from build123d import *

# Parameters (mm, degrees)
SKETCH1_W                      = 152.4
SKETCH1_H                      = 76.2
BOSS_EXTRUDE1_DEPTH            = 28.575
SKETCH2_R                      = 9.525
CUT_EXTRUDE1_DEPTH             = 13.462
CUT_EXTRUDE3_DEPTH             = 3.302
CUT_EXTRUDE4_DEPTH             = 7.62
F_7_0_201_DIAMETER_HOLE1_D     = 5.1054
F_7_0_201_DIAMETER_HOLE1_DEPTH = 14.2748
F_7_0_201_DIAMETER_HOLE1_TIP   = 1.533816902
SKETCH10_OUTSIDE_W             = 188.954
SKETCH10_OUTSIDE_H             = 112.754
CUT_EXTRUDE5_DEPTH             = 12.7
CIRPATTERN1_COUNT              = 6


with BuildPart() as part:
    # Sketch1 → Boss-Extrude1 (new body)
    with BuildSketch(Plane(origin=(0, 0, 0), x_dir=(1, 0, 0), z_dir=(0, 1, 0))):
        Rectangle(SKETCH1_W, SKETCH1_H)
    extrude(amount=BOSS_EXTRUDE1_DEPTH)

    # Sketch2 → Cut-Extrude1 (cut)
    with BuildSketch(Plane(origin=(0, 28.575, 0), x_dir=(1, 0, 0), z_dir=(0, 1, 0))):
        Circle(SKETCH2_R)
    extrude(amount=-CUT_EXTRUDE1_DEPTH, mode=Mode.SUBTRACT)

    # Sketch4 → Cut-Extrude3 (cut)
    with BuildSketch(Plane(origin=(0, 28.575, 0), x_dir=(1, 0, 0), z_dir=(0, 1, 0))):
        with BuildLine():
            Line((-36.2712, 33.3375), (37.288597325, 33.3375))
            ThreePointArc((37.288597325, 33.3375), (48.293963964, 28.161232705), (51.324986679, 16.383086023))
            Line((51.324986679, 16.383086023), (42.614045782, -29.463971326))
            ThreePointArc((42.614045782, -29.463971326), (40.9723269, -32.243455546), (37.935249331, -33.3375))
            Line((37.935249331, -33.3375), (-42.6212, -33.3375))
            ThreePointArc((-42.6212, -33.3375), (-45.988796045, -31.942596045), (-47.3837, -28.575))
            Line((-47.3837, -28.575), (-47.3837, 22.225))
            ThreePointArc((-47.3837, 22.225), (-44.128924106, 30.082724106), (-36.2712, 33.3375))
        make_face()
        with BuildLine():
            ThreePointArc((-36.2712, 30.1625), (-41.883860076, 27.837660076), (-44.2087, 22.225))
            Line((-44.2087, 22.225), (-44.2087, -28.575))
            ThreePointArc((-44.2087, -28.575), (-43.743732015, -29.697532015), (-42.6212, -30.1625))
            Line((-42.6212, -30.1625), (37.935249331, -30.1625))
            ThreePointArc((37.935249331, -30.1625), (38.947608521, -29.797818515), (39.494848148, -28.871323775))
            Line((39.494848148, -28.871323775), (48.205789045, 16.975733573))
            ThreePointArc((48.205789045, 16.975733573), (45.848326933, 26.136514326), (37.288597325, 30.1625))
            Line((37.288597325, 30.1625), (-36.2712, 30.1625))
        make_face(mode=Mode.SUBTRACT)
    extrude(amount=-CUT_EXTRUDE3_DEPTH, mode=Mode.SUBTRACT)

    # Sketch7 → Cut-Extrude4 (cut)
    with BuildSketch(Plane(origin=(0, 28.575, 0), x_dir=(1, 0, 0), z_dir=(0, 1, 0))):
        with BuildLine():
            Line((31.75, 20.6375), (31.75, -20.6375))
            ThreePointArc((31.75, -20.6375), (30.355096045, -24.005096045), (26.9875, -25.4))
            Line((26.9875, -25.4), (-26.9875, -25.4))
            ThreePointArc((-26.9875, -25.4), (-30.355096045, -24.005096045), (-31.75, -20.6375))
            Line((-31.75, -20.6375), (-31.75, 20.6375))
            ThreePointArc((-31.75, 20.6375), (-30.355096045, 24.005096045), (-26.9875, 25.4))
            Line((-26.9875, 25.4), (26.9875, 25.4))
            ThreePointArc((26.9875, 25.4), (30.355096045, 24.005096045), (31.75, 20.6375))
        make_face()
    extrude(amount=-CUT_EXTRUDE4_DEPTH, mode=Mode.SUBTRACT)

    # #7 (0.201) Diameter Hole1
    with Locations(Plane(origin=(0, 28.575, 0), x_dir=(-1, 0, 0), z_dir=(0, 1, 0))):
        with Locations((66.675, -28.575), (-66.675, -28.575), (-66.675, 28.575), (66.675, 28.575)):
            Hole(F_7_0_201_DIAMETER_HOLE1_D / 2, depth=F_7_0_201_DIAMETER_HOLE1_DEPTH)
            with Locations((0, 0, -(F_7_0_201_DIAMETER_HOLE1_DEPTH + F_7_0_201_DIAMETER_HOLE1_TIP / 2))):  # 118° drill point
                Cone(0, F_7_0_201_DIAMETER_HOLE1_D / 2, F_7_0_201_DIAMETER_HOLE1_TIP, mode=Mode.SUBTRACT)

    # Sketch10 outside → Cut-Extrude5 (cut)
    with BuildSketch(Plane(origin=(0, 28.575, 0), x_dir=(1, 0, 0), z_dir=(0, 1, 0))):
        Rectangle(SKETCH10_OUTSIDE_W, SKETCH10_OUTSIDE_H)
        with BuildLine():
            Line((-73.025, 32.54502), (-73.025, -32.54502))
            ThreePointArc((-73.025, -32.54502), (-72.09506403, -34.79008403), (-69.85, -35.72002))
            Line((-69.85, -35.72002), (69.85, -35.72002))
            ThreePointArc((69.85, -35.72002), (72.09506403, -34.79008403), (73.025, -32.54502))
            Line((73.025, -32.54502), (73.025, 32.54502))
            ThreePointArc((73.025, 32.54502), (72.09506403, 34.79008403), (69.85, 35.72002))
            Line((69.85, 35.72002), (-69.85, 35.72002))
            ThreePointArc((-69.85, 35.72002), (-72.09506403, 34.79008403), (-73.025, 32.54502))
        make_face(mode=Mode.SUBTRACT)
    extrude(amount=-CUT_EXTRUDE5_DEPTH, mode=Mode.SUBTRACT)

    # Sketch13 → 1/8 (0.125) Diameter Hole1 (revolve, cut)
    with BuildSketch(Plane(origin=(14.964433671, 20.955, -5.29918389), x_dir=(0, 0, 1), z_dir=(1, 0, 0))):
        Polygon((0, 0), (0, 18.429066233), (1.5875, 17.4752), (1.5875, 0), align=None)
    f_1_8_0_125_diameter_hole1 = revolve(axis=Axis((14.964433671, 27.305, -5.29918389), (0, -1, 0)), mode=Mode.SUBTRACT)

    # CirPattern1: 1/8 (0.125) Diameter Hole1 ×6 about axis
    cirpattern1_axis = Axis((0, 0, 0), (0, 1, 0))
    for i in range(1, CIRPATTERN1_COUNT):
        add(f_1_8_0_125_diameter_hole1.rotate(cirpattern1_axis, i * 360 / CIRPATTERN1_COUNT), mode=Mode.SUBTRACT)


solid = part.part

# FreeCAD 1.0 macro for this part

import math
import FreeCAD as App
import Part
import Sketcher

V = App.Vector
Q = App.Units.Quantity


def add_polygon(sketch, points):
    """Adds a closed chain of lines whose ends are joined by coincident constraints."""
    first, n = sketch.GeometryCount, len(points)
    for a, b in zip(points, points[1:] + points[:1]):
        sketch.addGeometry(Part.LineSegment(App.Vector(*a, 0), App.Vector(*b, 0)), False)
    for i in range(n):
        sketch.addConstraint(Sketcher.Constraint("Coincident", first + i, 2, first + (i + 1) % n, 1))

doc = App.newDocument("Part")
params = doc.addObject("Spreadsheet::Sheet", "Params")
for row, (alias, value) in enumerate([
    ("sketch1_width", "6 in"),
    ("sketch1_height", "3 in"),
    ("pad1_length", "1.125 in"),
    ("sketch2_diameter", "0.75 in"),
    ("pocket1_length", "0.53 in"),
    ("sketch3_height", "2 in"),
    ("sketch3_radius", "0.4375 in"),
    ("sketch3_radius2", "0.1875 in"),
    ("sketch3_radius3", "0.5625 in"),
    ("pocket2_length", "0.13 in"),
    ("sketch4_radius", "0.1875 in"),
    ("sketch4_width", "2.125 in"),
    ("pocket3_length", "0.3 in"),
    ("sketch5_diameter", "0.201 in"),
    ("hole_diameter", "0.201 in"),
    ("hole_depth", "0.562 in"),
    ("sketch6_width", "5.5 in"),
    ("sketch6_radius", "0.125 in"),
    ("pocket4_length", "0.5 in"),
    ("sketch7_width", "0.688 in"),
    ("sketch7_height", "0.0625 in"),
    ("groove_angle", "360 deg"),
], start=1):
    params.set(f"A{row}", alias)
    params.set(f"B{row}", "=" + value)
    params.setAlias(f"B{row}", alias)

body = doc.addObject("PartDesign::Body", "Body")

sketch1 = body.newObject("Sketcher::SketchObject", "Sketch")
sketch1.AttachmentSupport = (doc.getObject("XZ_Plane"), [""])
sketch1.MapMode = "FlatFace"
add_polygon(sketch1, [(-76, -38), (-76, 38), (76, 38), (76, -38)])
sketch1.addConstraint([
    Sketcher.Constraint("Vertical", 0),
    Sketcher.Constraint("Horizontal", 1),
    Sketcher.Constraint("Vertical", 2),
    Sketcher.Constraint("Horizontal", 3),
    Sketcher.Constraint("Symmetric", 0, 2, 2, 2, -1, 1),
    Sketcher.Constraint("DistanceX", 1, 1, 1, 2, Q("6 in")),
    Sketcher.Constraint("DistanceY", 0, 1, 0, 2, Q("3 in")),
])
sketch1.setExpression("Constraints[9]", "Params.sketch1_width")
sketch1.setExpression("Constraints[10]", "Params.sketch1_height")
pad1 = body.newObject("PartDesign::Pad", "Pad")
pad1.Profile = sketch1
pad1.setExpression("Length", "Params.pad1_length")
pad1.Reversed = True

sketch2 = body.newObject("Sketcher::SketchObject", "Sketch001")
sketch2.AttachmentSupport = (doc.getObject("XZ_Plane"), [""])
sketch2.MapMode = "FlatFace"
sketch2.AttachmentOffset = App.Placement(V(0, 0, -1.125 * 25.4), App.Rotation())
sketch2.addGeometry(Part.Circle(V(0, 0, 0), V(0, 0, 1), 10), False)
sketch2.addConstraint([
    Sketcher.Constraint("Coincident", 0, 3, -1, 1),
    Sketcher.Constraint("Diameter", 0, Q("0.75 in")),
])
sketch2.setExpression("Constraints[1]", "Params.sketch2_diameter")
pocket1 = body.newObject("PartDesign::Pocket", "Pocket")
pocket1.Profile = sketch2
pocket1.setExpression("Length", "Params.pocket1_length")
pocket1.Reversed = True

sketch3 = body.newObject("Sketcher::SketchObject", "Sketch002")
sketch3.AttachmentSupport = (doc.getObject("XZ_Plane"), [""])
sketch3.MapMode = "FlatFace"
sketch3.AttachmentOffset = App.Placement(V(0, 0, -1.125 * 25.4), App.Rotation())
sketch3.addGeometry([
    Part.LineSegment(V(37.3, -33.3, 0), V(-36.3, -33.3, 0)),
    Part.ArcOfCircle(Part.Circle(V(-36.3, -22.2, 0), V(0, 0, 1), 11.1), math.radians(180), math.radians(270)),
    Part.LineSegment(V(-47.4, -22.2, 0), V(-47.4, 28.6, 0)),
    Part.ArcOfCircle(Part.Circle(V(-42.6, 28.6, 0), V(0, 0, 1), 4.8), math.radians(90), math.radians(180)),
    Part.LineSegment(V(-42.6, 33.3, 0), V(37.9, 33.3, 0)),
    Part.ArcOfCircle(Part.Circle(V(37.9, 28.6, 0), V(0, 0, 1), 4.8), math.radians(11), math.radians(90)),
    Part.LineSegment(V(42.6, 29.5, 0), V(51.3, -16.4, 0)),
    Part.ArcOfCircle(Part.Circle(V(37.3, -19.1, 0), V(0, 0, 1), 14.3), math.radians(-90), math.radians(11)),
    Part.LineSegment(V(-36.3, -30.2, 0), V(37.3, -30.2, 0)),
    Part.ArcOfCircle(Part.Circle(V(37.3, -19.1, 0), V(0, 0, 1), 11.1), math.radians(-90), math.radians(11)),
    Part.LineSegment(V(48.2, -17, 0), V(39.5, 28.9, 0)),
    Part.ArcOfCircle(Part.Circle(V(37.9, 28.6, 0), V(0, 0, 1), 1.6), math.radians(11), math.radians(90)),
    Part.LineSegment(V(37.9, 30.2, 0), V(-42.6, 30.2, 0)),
    Part.ArcOfCircle(Part.Circle(V(-42.6, 28.6, 0), V(0, 0, 1), 1.6), math.radians(90), math.radians(180)),
    Part.LineSegment(V(-44.2, 28.6, 0), V(-44.2, -22.2, 0)),
    Part.ArcOfCircle(Part.Circle(V(-36.3, -22.2, 0), V(0, 0, 1), 7.9), math.radians(180), math.radians(270)),
], False)
sketch3.addConstraint([
    Sketcher.Constraint("Tangent", 0, 2, 1, 2),
    Sketcher.Constraint("Tangent", 1, 1, 2, 1),
    Sketcher.Constraint("Tangent", 2, 2, 3, 2),
    Sketcher.Constraint("Tangent", 3, 1, 4, 1),
    Sketcher.Constraint("Tangent", 4, 2, 5, 2),
    Sketcher.Constraint("Tangent", 5, 1, 6, 1),
    Sketcher.Constraint("Tangent", 6, 2, 7, 2),
    Sketcher.Constraint("Tangent", 7, 1, 0, 1),
    Sketcher.Constraint("Tangent", 8, 2, 9, 1),
    Sketcher.Constraint("Tangent", 9, 2, 10, 1),
    Sketcher.Constraint("Tangent", 10, 2, 11, 1),
    Sketcher.Constraint("Tangent", 11, 2, 12, 1),
    Sketcher.Constraint("Tangent", 12, 2, 13, 1),
    Sketcher.Constraint("Tangent", 13, 2, 14, 1),
    Sketcher.Constraint("Tangent", 14, 2, 15, 1),
    Sketcher.Constraint("Tangent", 15, 2, 8, 1),
    Sketcher.Constraint("Horizontal", 0),
    Sketcher.Constraint("Vertical", 2),
    Sketcher.Constraint("Horizontal", 4),
    Sketcher.Constraint("Horizontal", 8),
    Sketcher.Constraint("Horizontal", 12),
    Sketcher.Constraint("Vertical", 14),
    Sketcher.Constraint("Coincident", 9, 3, 7, 3),
    Sketcher.Constraint("Coincident", 11, 3, 5, 3),
    Sketcher.Constraint("Coincident", 13, 3, 3, 3),
    Sketcher.Constraint("Coincident", 15, 3, 1, 3),
    Sketcher.Constraint("Equal", 3, 5),
    Sketcher.Constraint("Equal", 1, 9),
    Sketcher.Constraint("DistanceY", 2, 1, 2, 2, Q("2 in")),
    Sketcher.Constraint("Radius", 1, Q("0.4375 in")),
    Sketcher.Constraint("Radius", 3, Q("0.1875 in")),
    Sketcher.Constraint("Radius", 7, Q("0.5625 in")),
    Sketcher.Constraint("DistanceY", 7, 3, -1, 1, Q("0.75 in")),
    Sketcher.Constraint("DistanceX", 1, 3, -1, 1, Q("1.428 in")),
    Sketcher.Constraint("DistanceX", 4, 1, 4, 2, 80.556449),
    Sketcher.Constraint("Distance", 6, 46.66726),
])
sketch3.setExpression("Constraints[28]", "Params.sketch3_height")
sketch3.setExpression("Constraints[29]", "Params.sketch3_radius")
sketch3.setExpression("Constraints[30]", "Params.sketch3_radius2")
sketch3.setExpression("Constraints[31]", "Params.sketch3_radius3")
pocket2 = body.newObject("PartDesign::Pocket", "Pocket001")
pocket2.Profile = sketch3
pocket2.setExpression("Length", "Params.pocket2_length")
pocket2.Reversed = True

sketch4 = body.newObject("Sketcher::SketchObject", "Sketch003")
sketch4.AttachmentSupport = (doc.getObject("XZ_Plane"), [""])
sketch4.MapMode = "FlatFace"
sketch4.AttachmentOffset = App.Placement(V(0, 0, -1.125 * 25.4), App.Rotation())
sketch4.addGeometry([
    Part.LineSegment(V(31.8, 20.6, 0), V(31.8, -20.6, 0)),
    Part.ArcOfCircle(Part.Circle(V(27, -20.6, 0), V(0, 0, 1), 4.8), math.radians(-90), math.radians(0)),
    Part.LineSegment(V(27, -25.4, 0), V(-27, -25.4, 0)),
    Part.ArcOfCircle(Part.Circle(V(-27, -20.6, 0), V(0, 0, 1), 4.8), math.radians(-180), math.radians(-90)),
    Part.LineSegment(V(-31.8, -20.6, 0), V(-31.8, 20.6, 0)),
    Part.ArcOfCircle(Part.Circle(V(-27, 20.6, 0), V(0, 0, 1), 4.8), math.radians(90), math.radians(180)),
    Part.LineSegment(V(-27, 25.4, 0), V(27, 25.4, 0)),
    Part.ArcOfCircle(Part.Circle(V(27, 20.6, 0), V(0, 0, 1), 4.8), math.radians(0), math.radians(90)),
], False)
sketch4.addConstraint([
    Sketcher.Constraint("Tangent", 0, 2, 1, 2),
    Sketcher.Constraint("Tangent", 1, 1, 2, 1),
    Sketcher.Constraint("Tangent", 2, 2, 3, 2),
    Sketcher.Constraint("Tangent", 3, 1, 4, 1),
    Sketcher.Constraint("Tangent", 4, 2, 5, 2),
    Sketcher.Constraint("Tangent", 5, 1, 6, 1),
    Sketcher.Constraint("Tangent", 6, 2, 7, 2),
    Sketcher.Constraint("Tangent", 7, 1, 0, 1),
    Sketcher.Constraint("Vertical", 0),
    Sketcher.Constraint("Horizontal", 2),
    Sketcher.Constraint("Vertical", 4),
    Sketcher.Constraint("Horizontal", 6),
    Sketcher.Constraint("Equal", 1, 3),
    Sketcher.Constraint("Equal", 3, 5),
    Sketcher.Constraint("Equal", 5, 7),
    Sketcher.Constraint("Symmetric", 1, 3, 5, 3, -1, 1),
    Sketcher.Constraint("DistanceY", 1, 1, -1, 1, Q("1 in")),
    Sketcher.Constraint("Radius", 1, Q("0.1875 in")),
    Sketcher.Constraint("DistanceX", 2, 2, 2, 1, Q("2.125 in")),
])
sketch4.setExpression("Constraints[17]", "Params.sketch4_radius")
sketch4.setExpression("Constraints[18]", "Params.sketch4_width")
pocket3 = body.newObject("PartDesign::Pocket", "Pocket002")
pocket3.Profile = sketch4
pocket3.setExpression("Length", "Params.pocket3_length")
pocket3.Reversed = True

sketch5 = body.newObject("Sketcher::SketchObject", "Sketch004")
sketch5.AttachmentSupport = (doc.getObject("XZ_Plane"), [""])
sketch5.MapMode = "FlatFace"
sketch5.AttachmentOffset = App.Placement(V(0, 0, -1.125 * 25.4), App.Rotation())
sketch5.addGeometry([
    Part.Circle(V(-66.7, -28.6, 0), V(0, 0, 1), 2.6),
    Part.Circle(V(66.7, -28.6, 0), V(0, 0, 1), 2.6),
    Part.Circle(V(66.7, 28.6, 0), V(0, 0, 1), 2.6),
    Part.Circle(V(-66.7, 28.6, 0), V(0, 0, 1), 2.6),
], False)
sketch5.addConstraint([
    Sketcher.Constraint("Equal", 0, 1),
    Sketcher.Constraint("Equal", 1, 2),
    Sketcher.Constraint("Equal", 2, 3),
    Sketcher.Constraint("Symmetric", 0, 3, 2, 3, -1, 1),
    Sketcher.Constraint("Symmetric", 1, 3, 3, 3, -1, 1),
    Sketcher.Constraint("Symmetric", 0, 3, 1, 3, -2),
    Sketcher.Constraint("Diameter", 0, Q("0.201 in")),
    Sketcher.Constraint("DistanceX", 0, 3, 1, 3, Q("5.25 in")),
    Sketcher.Constraint("DistanceY", 1, 3, 2, 3, Q("2.25 in")),
])
sketch5.setExpression("Constraints[6]", "Params.sketch5_diameter")
doc.recompute()
hole = body.newObject("PartDesign::Hole", "Hole")
hole.Profile = sketch5
hole.ThreadType = "None"
hole.setExpression("Diameter", "Params.hole_diameter")
hole.DepthType = "Dimension"
hole.setExpression("Depth", "Params.hole_depth")
hole.DrillPoint = "Angled"
hole.DrillPointAngle = 118
hole.Reversed = True

sketch6 = body.newObject("Sketcher::SketchObject", "Sketch005")
sketch6.AttachmentSupport = (doc.getObject("XZ_Plane"), [""])
sketch6.MapMode = "FlatFace"
sketch6.AttachmentOffset = App.Placement(V(0, 0, -1.125 * 25.4), App.Rotation())
add_polygon(sketch6, [(-94.5, -56.4), (-94.5, 56.4), (94.5, 56.4), (94.5, -56.4)])
sketch6.addGeometry(Part.LineSegment(V(-73, 32.5, 0), V(-73, -32.5, 0)), False)
sketch6.addGeometry(Part.ArcOfCircle(Part.Circle(V(-69.8, -32.5, 0), V(0, 0, 1), 3.2), math.radians(-180), math.radians(-90)), False)
sketch6.addGeometry(Part.LineSegment(V(-69.8, -35.7, 0), V(69.8, -35.7, 0)), False)
sketch6.addGeometry(Part.ArcOfCircle(Part.Circle(V(69.8, -32.5, 0), V(0, 0, 1), 3.2), math.radians(-90), math.radians(0)), False)
sketch6.addGeometry(Part.LineSegment(V(73, -32.5, 0), V(73, 32.5, 0)), False)
sketch6.addGeometry(Part.ArcOfCircle(Part.Circle(V(69.8, 32.5, 0), V(0, 0, 1), 3.2), math.radians(0), math.radians(90)), False)
sketch6.addGeometry(Part.LineSegment(V(69.8, 35.7, 0), V(-69.8, 35.7, 0)), False)
sketch6.addGeometry(Part.ArcOfCircle(Part.Circle(V(-69.8, 32.5, 0), V(0, 0, 1), 3.2), math.radians(90), math.radians(180)), False)
sketch6.addConstraint([
    Sketcher.Constraint("Tangent", 4, 2, 5, 1),
    Sketcher.Constraint("Tangent", 5, 2, 6, 1),
    Sketcher.Constraint("Tangent", 6, 2, 7, 1),
    Sketcher.Constraint("Tangent", 7, 2, 8, 1),
    Sketcher.Constraint("Tangent", 8, 2, 9, 1),
    Sketcher.Constraint("Tangent", 9, 2, 10, 1),
    Sketcher.Constraint("Tangent", 10, 2, 11, 1),
    Sketcher.Constraint("Tangent", 11, 2, 4, 1),
    Sketcher.Constraint("Vertical", 0),
    Sketcher.Constraint("Horizontal", 1),
    Sketcher.Constraint("Vertical", 2),
    Sketcher.Constraint("Horizontal", 3),
    Sketcher.Constraint("Vertical", 4),
    Sketcher.Constraint("Horizontal", 6),
    Sketcher.Constraint("Vertical", 8),
    Sketcher.Constraint("Horizontal", 10),
    Sketcher.Constraint("Equal", 5, 7),
    Sketcher.Constraint("Equal", 7, 9),
    Sketcher.Constraint("Equal", 9, 11),
    Sketcher.Constraint("Symmetric", 5, 3, 9, 3, -1, 1),
    Sketcher.Constraint("Symmetric", 0, 2, 2, 2, -1, 1),
    Sketcher.Constraint("DistanceX", 6, 1, 6, 2, Q("5.5 in")),
    Sketcher.Constraint("Radius", 5, Q("0.125 in")),
    Sketcher.Constraint("DistanceY", 4, 2, 4, 1, Q("2.5626 in")),
    Sketcher.Constraint("DistanceX", 1, 1, 1, 2, 188.954),
    Sketcher.Constraint("DistanceY", 0, 1, 0, 2, 112.754),
])
sketch6.setExpression("Constraints[25]", "Params.sketch6_width")
sketch6.setExpression("Constraints[26]", "Params.sketch6_radius")
pocket4 = body.newObject("PartDesign::Pocket", "Pocket003")
pocket4.Profile = sketch6
pocket4.setExpression("Length", "Params.pocket4_length")
pocket4.Reversed = True

sketch7 = body.newObject("Sketcher::SketchObject", "Sketch006")
sketch7.AttachmentSupport = (doc.getObject("YZ_Plane"), [""])
sketch7.MapMode = "FlatFace"
sketch7.AttachmentOffset = App.Placement(V(0, 0, 14.964434), App.Rotation())
add_polygon(sketch7, [(2.5, -5.3), (21, -5.3), (21, -3.7), (3.5, -3.7)])
sketch7.addGeometry(Part.LineSegment(V(21, -5.3, 0), V(2.5, -5.3, 0)), True)
sketch7.addConstraint([
    Sketcher.Constraint("Horizontal", 0),
    Sketcher.Constraint("Vertical", 1),
    Sketcher.Constraint("Horizontal", 2),
    Sketcher.Constraint("Horizontal", 4),
    Sketcher.Constraint("Coincident", 4, 1, 0, 2),
    Sketcher.Constraint("Equal", 0, 4),
    Sketcher.Constraint("Angle", 3, Q("-121 deg")),
    Sketcher.Constraint("DistanceX", 2, 2, 2, 1, Q("0.688 in")),
    Sketcher.Constraint("DistanceY", 1, 1, 1, 2, Q("0.0625 in")),
    Sketcher.Constraint("DistanceX", -1, 1, 0, 2, Q("0.825 in")),
    Sketcher.Constraint("DistanceY", 0, 2, -1, 1, 5.299184),
])
sketch7.setExpression("Constraints[11]", "Params.sketch7_width")
sketch7.setExpression("Constraints[12]", "Params.sketch7_height")
groove = body.newObject("PartDesign::Groove", "Groove")
groove.Profile = sketch7
groove.ReferenceAxis = (sketch7, ["Axis0"])
groove.setExpression("Angle", "Params.groove_angle")
doc.recompute()

polarpattern = body.newObject("PartDesign::PolarPattern", "PolarPattern")
polarpattern.Originals = [groove]
polarpattern.Axis = (doc.getObject("Y_Axis"), [""])
polarpattern.Angle = 360
polarpattern.Occurrences = 6
body.Tip = polarpattern

doc.recompute()
